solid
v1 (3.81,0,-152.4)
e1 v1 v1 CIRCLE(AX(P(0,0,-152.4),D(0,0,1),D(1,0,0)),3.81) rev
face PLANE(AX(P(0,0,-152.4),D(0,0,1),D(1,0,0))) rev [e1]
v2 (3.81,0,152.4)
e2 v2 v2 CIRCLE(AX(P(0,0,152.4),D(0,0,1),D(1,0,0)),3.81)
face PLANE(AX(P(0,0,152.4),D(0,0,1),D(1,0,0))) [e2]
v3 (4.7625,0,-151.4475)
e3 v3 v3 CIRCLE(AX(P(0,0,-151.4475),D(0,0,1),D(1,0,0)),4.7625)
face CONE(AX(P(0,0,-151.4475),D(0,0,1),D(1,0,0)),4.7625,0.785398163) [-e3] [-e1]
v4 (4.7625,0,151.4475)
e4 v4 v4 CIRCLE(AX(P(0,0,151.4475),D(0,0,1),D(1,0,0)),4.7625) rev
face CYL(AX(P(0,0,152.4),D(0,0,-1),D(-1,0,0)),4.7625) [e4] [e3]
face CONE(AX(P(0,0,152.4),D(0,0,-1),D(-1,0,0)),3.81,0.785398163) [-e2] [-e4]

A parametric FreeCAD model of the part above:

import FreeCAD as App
import Part
import Sketcher
Q = App.Units.Quantity


def edges_at(feature, points):
    """Names of the edges that pass closest to the given points."""
    edges = feature.Shape.Edges
    near = lambda p: min(range(len(edges)), key=lambda i: edges[i].distToShape(Part.Vertex(*p))[0])
    return sorted({f"Edge{near(p) + 1}" for p in points})

doc = App.newDocument("Part")
body = doc.addObject("PartDesign::Body", "Body")

sketch1 = doc.addObject("Sketcher::SketchObject", "Sketch")
body.addObject(sketch1)
sketch1.AttachmentSupport = (doc.XY_Plane, [""])
sketch1.MapMode = "FlatFace"
sketch1.addGeometry(Part.Circle(App.Vector(0, 0, 0), App.Vector(0, 0, 1), 4.7625), False)
sketch1.addConstraint(Sketcher.Constraint("Coincident", 0, 3, -1, 1))
sketch1.addConstraint(Sketcher.Constraint("Diameter", 0, Q("0.375 in")))
pad1 = doc.addObject("PartDesign::Pad", "Pad")
body.addObject(pad1)
pad1.Profile = sketch1
pad1.Length = Q("12 in")
pad1.Midplane = True
doc.recompute()

chamfer = doc.addObject("PartDesign::Chamfer", "Chamfer")
body.addObject(chamfer)
chamfer.Base = (pad1, edges_at(pad1, [(-4.763, 0, -152.4), (-4.763, 0, 152.4)]))
chamfer.Size = Q("0.0375 in")

doc.recompute()
